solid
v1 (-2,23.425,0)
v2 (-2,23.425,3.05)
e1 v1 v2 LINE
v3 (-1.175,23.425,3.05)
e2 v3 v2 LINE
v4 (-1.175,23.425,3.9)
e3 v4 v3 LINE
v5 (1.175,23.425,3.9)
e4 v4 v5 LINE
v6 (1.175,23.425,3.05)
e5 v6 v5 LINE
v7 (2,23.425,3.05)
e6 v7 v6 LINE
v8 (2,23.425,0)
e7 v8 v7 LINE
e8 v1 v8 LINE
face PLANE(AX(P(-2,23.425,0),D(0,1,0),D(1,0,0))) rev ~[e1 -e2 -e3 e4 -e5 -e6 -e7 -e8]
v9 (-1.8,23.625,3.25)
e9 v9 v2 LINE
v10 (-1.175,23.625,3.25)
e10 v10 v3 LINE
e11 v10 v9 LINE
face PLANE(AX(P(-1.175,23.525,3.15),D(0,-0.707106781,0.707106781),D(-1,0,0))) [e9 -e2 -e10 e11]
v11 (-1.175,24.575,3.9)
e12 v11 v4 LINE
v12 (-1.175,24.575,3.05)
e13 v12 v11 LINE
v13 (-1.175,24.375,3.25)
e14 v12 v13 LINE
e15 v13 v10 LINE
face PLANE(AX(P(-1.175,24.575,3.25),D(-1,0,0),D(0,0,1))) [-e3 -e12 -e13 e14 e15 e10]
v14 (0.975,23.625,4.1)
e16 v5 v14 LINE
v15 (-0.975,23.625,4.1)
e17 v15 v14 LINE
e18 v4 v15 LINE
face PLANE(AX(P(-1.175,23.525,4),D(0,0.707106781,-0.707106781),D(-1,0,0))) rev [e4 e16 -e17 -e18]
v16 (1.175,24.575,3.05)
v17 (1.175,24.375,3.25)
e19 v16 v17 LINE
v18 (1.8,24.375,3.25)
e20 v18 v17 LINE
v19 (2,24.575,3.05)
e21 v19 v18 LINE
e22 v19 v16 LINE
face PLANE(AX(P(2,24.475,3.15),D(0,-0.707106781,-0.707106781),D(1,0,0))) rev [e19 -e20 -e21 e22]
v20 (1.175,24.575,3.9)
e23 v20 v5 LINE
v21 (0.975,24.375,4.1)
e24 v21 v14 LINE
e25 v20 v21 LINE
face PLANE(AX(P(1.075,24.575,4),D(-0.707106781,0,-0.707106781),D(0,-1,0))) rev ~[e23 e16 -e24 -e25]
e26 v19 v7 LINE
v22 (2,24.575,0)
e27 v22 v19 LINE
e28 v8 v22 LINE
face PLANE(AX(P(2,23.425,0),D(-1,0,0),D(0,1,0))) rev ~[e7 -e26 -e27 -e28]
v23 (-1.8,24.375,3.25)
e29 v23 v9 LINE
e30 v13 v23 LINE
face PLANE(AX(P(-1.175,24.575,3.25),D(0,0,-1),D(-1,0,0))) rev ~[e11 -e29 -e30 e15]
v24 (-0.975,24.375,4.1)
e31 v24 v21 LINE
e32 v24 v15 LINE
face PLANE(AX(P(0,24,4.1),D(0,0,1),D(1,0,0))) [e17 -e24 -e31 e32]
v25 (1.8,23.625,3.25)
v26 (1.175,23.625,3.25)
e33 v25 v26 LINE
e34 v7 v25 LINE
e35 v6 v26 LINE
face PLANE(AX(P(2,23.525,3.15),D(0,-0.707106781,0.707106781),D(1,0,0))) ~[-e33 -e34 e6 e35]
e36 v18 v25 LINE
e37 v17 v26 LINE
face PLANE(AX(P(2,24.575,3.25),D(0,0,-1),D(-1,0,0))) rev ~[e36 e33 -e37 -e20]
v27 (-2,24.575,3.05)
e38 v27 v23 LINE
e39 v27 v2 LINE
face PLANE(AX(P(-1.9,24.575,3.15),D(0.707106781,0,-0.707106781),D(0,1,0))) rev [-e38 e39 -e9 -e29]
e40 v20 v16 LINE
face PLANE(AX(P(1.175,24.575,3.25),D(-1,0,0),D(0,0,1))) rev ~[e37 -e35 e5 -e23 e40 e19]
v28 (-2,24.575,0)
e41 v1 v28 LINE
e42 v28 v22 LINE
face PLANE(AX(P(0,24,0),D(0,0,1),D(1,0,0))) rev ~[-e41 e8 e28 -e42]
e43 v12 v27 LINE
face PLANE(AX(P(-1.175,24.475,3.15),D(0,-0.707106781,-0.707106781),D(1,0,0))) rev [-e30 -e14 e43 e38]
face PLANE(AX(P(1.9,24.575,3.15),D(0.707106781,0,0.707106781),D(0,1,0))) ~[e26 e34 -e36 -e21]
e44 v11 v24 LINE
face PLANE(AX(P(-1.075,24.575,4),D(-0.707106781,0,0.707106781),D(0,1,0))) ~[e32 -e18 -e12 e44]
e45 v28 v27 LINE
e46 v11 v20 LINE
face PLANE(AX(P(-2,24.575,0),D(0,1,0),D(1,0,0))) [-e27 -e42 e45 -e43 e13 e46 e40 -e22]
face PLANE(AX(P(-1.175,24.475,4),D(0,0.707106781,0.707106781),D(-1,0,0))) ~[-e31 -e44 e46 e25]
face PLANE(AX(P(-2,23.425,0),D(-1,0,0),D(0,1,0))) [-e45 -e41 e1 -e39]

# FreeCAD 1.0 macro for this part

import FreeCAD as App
import Part
import Sketcher
Q = App.Units.Quantity


def edges_at(feature, points):
    """Names of the edges that pass closest to the given points."""
    edges = feature.Shape.Edges
    near = lambda p: min(range(len(edges)), key=lambda i: edges[i].distToShape(Part.Vertex(*p))[0])
    return sorted({f"Edge{near(p) + 1}" for p in points})

doc = App.newDocument("Part")
body = doc.addObject("PartDesign::Body", "Body")

# Sketch on XY plane
sketch1 = body.newObject("Sketcher::SketchObject", "Sketch")
sketch1.AttachmentSupport = (doc.getObject("XY_Plane"), [""])
sketch1.MapMode = "FlatFace"
sketch1.addGeometry(Part.LineSegment(App.Vector(-2, 0.6, 0), App.Vector(-2, -0.6, 0)), False)
sketch1.addGeometry(Part.LineSegment(App.Vector(-2, -0.6, 0), App.Vector(2, -0.6, 0)), False)
sketch1.addGeometry(Part.LineSegment(App.Vector(2, -0.6, 0), App.Vector(2, 0.6, 0)), False)
sketch1.addGeometry(Part.LineSegment(App.Vector(2, 0.6, 0), App.Vector(-2, 0.6, 0)), False)
sketch1.addConstraint(Sketcher.Constraint("Coincident", 0, 2, 1, 1))
sketch1.addConstraint(Sketcher.Constraint("Coincident", 1, 2, 2, 1))
sketch1.addConstraint(Sketcher.Constraint("Coincident", 2, 2, 3, 1))
sketch1.addConstraint(Sketcher.Constraint("Coincident", 3, 2, 0, 1))
sketch1.addConstraint(Sketcher.Constraint("Vertical", 0))
sketch1.addConstraint(Sketcher.Constraint("Horizontal", 1))
sketch1.addConstraint(Sketcher.Constraint("Vertical", 2))
sketch1.addConstraint(Sketcher.Constraint("Horizontal", 3))
sketch1.addConstraint(Sketcher.Constraint("Symmetric", 0, 2, 2, 2, -1, 1))
sketch1.addConstraint(Sketcher.Constraint("DistanceX", 1, 1, 1, 2, Q("4 mm")))
sketch1.addConstraint(Sketcher.Constraint("DistanceY", 0, 2, 0, 1, Q("1.15 mm")))
pad1 = body.newObject("PartDesign::Pad", "Pad")
pad1.Profile = sketch1
pad1.Length = 4.1

# Sketch on XZ plane
sketch2 = body.newObject("Sketcher::SketchObject", "Sketch001")
sketch2.AttachmentSupport = (doc.getObject("XZ_Plane"), [""])
sketch2.MapMode = "FlatFace"
sketch2.AttachmentOffset = App.Placement(App.Vector(0, 0, -0.575), App.Rotation())
sketch2.addGeometry(Part.LineSegment(App.Vector(2, 4.1, 0), App.Vector(2, 3.2, 0)), False)
sketch2.addGeometry(Part.LineSegment(App.Vector(2, 3.2, 0), App.Vector(1.2, 3.2, 0)), False)
sketch2.addGeometry(Part.LineSegment(App.Vector(1.2, 3.2, 0), App.Vector(1.2, 4.1, 0)), False)
sketch2.addGeometry(Part.LineSegment(App.Vector(1.2, 4.1, 0), App.Vector(2, 4.1, 0)), False)
sketch2.addGeometry(Part.LineSegment(App.Vector(-1.2, 4.1, 0), App.Vector(-1.2, 3.2, 0)), False)
sketch2.addGeometry(Part.LineSegment(App.Vector(-1.2, 3.2, 0), App.Vector(-2, 3.2, 0)), False)
sketch2.addGeometry(Part.LineSegment(App.Vector(-2, 3.2, 0), App.Vector(-2, 4.1, 0)), False)
sketch2.addGeometry(Part.LineSegment(App.Vector(-2, 4.1, 0), App.Vector(-1.2, 4.1, 0)), False)
sketch2.addConstraint(Sketcher.Constraint("Coincident", 0, 2, 1, 1))
sketch2.addConstraint(Sketcher.Constraint("Coincident", 1, 2, 2, 1))
sketch2.addConstraint(Sketcher.Constraint("Coincident", 2, 2, 3, 1))
sketch2.addConstraint(Sketcher.Constraint("Coincident", 3, 2, 0, 1))
sketch2.addConstraint(Sketcher.Constraint("Coincident", 4, 2, 5, 1))
sketch2.addConstraint(Sketcher.Constraint("Coincident", 5, 2, 6, 1))
sketch2.addConstraint(Sketcher.Constraint("Coincident", 6, 2, 7, 1))
sketch2.addConstraint(Sketcher.Constraint("Coincident", 7, 2, 4, 1))
sketch2.addConstraint(Sketcher.Constraint("Vertical", 0))
sketch2.addConstraint(Sketcher.Constraint("Horizontal", 1))
sketch2.addConstraint(Sketcher.Constraint("Vertical", 2))
sketch2.addConstraint(Sketcher.Constraint("Horizontal", 3))
sketch2.addConstraint(Sketcher.Constraint("Vertical", 4))
sketch2.addConstraint(Sketcher.Constraint("Horizontal", 5))
sketch2.addConstraint(Sketcher.Constraint("Vertical", 6))
sketch2.addConstraint(Sketcher.Constraint("Horizontal", 7))
sketch2.addConstraint(Sketcher.Constraint("Symmetric", 1, 2, 4, 2, -2))
sketch2.addConstraint(Sketcher.Constraint("Symmetric", 3, 2, 6, 2, -2))
sketch2.addConstraint(Sketcher.Constraint("DistanceX", -1, 1, 0, 2, Q("2 mm")))
sketch2.addConstraint(Sketcher.Constraint("DistanceY", 0, 2, 0, 1, Q("0.85 mm")))
sketch2.addConstraint(Sketcher.Constraint("DistanceY", -1, 1, 2, 2, Q("4.1 mm")))
sketch2.addConstraint(Sketcher.Constraint("DistanceX", 1, 2, 1, 1, Q("0.825 mm")))
pocket1 = body.newObject("PartDesign::Pocket", "Pocket")
pocket1.Profile = sketch2
pocket1.Length = 5
pocket1.Reversed = True
doc.recompute()

chamfer = body.newObject("PartDesign::Chamfer", "Chamfer")
chamfer.Base = (pocket1, edges_at(pocket1, [
    (0, 0.575, 4.1),
    (0, -0.575, 4.1),
    (1.587, 0.575, 3.25),
    (-1.587, 0.575, 3.25),
    (-1.587, -0.575, 3.25),
    (1.587, -0.575, 3.25),
    (2, 0, 3.25),
    (-2, 0, 3.25),
    (1.175, 0, 4.1),
    (-1.175, 0, 4.1),
]))
chamfer.Size = 0.2
body2 = doc.addObject("PartDesign::Body", "Body001")
doc.recompute()

body.Placement = App.Placement(App.Vector(0, 24, 0), App.Rotation(App.Vector(0, 0, 1), 0))
boolean = body2.newObject("PartDesign::Boolean", "Boolean")
boolean.Type = "Fuse"
boolean.addObjects([body])

doc.recompute()
